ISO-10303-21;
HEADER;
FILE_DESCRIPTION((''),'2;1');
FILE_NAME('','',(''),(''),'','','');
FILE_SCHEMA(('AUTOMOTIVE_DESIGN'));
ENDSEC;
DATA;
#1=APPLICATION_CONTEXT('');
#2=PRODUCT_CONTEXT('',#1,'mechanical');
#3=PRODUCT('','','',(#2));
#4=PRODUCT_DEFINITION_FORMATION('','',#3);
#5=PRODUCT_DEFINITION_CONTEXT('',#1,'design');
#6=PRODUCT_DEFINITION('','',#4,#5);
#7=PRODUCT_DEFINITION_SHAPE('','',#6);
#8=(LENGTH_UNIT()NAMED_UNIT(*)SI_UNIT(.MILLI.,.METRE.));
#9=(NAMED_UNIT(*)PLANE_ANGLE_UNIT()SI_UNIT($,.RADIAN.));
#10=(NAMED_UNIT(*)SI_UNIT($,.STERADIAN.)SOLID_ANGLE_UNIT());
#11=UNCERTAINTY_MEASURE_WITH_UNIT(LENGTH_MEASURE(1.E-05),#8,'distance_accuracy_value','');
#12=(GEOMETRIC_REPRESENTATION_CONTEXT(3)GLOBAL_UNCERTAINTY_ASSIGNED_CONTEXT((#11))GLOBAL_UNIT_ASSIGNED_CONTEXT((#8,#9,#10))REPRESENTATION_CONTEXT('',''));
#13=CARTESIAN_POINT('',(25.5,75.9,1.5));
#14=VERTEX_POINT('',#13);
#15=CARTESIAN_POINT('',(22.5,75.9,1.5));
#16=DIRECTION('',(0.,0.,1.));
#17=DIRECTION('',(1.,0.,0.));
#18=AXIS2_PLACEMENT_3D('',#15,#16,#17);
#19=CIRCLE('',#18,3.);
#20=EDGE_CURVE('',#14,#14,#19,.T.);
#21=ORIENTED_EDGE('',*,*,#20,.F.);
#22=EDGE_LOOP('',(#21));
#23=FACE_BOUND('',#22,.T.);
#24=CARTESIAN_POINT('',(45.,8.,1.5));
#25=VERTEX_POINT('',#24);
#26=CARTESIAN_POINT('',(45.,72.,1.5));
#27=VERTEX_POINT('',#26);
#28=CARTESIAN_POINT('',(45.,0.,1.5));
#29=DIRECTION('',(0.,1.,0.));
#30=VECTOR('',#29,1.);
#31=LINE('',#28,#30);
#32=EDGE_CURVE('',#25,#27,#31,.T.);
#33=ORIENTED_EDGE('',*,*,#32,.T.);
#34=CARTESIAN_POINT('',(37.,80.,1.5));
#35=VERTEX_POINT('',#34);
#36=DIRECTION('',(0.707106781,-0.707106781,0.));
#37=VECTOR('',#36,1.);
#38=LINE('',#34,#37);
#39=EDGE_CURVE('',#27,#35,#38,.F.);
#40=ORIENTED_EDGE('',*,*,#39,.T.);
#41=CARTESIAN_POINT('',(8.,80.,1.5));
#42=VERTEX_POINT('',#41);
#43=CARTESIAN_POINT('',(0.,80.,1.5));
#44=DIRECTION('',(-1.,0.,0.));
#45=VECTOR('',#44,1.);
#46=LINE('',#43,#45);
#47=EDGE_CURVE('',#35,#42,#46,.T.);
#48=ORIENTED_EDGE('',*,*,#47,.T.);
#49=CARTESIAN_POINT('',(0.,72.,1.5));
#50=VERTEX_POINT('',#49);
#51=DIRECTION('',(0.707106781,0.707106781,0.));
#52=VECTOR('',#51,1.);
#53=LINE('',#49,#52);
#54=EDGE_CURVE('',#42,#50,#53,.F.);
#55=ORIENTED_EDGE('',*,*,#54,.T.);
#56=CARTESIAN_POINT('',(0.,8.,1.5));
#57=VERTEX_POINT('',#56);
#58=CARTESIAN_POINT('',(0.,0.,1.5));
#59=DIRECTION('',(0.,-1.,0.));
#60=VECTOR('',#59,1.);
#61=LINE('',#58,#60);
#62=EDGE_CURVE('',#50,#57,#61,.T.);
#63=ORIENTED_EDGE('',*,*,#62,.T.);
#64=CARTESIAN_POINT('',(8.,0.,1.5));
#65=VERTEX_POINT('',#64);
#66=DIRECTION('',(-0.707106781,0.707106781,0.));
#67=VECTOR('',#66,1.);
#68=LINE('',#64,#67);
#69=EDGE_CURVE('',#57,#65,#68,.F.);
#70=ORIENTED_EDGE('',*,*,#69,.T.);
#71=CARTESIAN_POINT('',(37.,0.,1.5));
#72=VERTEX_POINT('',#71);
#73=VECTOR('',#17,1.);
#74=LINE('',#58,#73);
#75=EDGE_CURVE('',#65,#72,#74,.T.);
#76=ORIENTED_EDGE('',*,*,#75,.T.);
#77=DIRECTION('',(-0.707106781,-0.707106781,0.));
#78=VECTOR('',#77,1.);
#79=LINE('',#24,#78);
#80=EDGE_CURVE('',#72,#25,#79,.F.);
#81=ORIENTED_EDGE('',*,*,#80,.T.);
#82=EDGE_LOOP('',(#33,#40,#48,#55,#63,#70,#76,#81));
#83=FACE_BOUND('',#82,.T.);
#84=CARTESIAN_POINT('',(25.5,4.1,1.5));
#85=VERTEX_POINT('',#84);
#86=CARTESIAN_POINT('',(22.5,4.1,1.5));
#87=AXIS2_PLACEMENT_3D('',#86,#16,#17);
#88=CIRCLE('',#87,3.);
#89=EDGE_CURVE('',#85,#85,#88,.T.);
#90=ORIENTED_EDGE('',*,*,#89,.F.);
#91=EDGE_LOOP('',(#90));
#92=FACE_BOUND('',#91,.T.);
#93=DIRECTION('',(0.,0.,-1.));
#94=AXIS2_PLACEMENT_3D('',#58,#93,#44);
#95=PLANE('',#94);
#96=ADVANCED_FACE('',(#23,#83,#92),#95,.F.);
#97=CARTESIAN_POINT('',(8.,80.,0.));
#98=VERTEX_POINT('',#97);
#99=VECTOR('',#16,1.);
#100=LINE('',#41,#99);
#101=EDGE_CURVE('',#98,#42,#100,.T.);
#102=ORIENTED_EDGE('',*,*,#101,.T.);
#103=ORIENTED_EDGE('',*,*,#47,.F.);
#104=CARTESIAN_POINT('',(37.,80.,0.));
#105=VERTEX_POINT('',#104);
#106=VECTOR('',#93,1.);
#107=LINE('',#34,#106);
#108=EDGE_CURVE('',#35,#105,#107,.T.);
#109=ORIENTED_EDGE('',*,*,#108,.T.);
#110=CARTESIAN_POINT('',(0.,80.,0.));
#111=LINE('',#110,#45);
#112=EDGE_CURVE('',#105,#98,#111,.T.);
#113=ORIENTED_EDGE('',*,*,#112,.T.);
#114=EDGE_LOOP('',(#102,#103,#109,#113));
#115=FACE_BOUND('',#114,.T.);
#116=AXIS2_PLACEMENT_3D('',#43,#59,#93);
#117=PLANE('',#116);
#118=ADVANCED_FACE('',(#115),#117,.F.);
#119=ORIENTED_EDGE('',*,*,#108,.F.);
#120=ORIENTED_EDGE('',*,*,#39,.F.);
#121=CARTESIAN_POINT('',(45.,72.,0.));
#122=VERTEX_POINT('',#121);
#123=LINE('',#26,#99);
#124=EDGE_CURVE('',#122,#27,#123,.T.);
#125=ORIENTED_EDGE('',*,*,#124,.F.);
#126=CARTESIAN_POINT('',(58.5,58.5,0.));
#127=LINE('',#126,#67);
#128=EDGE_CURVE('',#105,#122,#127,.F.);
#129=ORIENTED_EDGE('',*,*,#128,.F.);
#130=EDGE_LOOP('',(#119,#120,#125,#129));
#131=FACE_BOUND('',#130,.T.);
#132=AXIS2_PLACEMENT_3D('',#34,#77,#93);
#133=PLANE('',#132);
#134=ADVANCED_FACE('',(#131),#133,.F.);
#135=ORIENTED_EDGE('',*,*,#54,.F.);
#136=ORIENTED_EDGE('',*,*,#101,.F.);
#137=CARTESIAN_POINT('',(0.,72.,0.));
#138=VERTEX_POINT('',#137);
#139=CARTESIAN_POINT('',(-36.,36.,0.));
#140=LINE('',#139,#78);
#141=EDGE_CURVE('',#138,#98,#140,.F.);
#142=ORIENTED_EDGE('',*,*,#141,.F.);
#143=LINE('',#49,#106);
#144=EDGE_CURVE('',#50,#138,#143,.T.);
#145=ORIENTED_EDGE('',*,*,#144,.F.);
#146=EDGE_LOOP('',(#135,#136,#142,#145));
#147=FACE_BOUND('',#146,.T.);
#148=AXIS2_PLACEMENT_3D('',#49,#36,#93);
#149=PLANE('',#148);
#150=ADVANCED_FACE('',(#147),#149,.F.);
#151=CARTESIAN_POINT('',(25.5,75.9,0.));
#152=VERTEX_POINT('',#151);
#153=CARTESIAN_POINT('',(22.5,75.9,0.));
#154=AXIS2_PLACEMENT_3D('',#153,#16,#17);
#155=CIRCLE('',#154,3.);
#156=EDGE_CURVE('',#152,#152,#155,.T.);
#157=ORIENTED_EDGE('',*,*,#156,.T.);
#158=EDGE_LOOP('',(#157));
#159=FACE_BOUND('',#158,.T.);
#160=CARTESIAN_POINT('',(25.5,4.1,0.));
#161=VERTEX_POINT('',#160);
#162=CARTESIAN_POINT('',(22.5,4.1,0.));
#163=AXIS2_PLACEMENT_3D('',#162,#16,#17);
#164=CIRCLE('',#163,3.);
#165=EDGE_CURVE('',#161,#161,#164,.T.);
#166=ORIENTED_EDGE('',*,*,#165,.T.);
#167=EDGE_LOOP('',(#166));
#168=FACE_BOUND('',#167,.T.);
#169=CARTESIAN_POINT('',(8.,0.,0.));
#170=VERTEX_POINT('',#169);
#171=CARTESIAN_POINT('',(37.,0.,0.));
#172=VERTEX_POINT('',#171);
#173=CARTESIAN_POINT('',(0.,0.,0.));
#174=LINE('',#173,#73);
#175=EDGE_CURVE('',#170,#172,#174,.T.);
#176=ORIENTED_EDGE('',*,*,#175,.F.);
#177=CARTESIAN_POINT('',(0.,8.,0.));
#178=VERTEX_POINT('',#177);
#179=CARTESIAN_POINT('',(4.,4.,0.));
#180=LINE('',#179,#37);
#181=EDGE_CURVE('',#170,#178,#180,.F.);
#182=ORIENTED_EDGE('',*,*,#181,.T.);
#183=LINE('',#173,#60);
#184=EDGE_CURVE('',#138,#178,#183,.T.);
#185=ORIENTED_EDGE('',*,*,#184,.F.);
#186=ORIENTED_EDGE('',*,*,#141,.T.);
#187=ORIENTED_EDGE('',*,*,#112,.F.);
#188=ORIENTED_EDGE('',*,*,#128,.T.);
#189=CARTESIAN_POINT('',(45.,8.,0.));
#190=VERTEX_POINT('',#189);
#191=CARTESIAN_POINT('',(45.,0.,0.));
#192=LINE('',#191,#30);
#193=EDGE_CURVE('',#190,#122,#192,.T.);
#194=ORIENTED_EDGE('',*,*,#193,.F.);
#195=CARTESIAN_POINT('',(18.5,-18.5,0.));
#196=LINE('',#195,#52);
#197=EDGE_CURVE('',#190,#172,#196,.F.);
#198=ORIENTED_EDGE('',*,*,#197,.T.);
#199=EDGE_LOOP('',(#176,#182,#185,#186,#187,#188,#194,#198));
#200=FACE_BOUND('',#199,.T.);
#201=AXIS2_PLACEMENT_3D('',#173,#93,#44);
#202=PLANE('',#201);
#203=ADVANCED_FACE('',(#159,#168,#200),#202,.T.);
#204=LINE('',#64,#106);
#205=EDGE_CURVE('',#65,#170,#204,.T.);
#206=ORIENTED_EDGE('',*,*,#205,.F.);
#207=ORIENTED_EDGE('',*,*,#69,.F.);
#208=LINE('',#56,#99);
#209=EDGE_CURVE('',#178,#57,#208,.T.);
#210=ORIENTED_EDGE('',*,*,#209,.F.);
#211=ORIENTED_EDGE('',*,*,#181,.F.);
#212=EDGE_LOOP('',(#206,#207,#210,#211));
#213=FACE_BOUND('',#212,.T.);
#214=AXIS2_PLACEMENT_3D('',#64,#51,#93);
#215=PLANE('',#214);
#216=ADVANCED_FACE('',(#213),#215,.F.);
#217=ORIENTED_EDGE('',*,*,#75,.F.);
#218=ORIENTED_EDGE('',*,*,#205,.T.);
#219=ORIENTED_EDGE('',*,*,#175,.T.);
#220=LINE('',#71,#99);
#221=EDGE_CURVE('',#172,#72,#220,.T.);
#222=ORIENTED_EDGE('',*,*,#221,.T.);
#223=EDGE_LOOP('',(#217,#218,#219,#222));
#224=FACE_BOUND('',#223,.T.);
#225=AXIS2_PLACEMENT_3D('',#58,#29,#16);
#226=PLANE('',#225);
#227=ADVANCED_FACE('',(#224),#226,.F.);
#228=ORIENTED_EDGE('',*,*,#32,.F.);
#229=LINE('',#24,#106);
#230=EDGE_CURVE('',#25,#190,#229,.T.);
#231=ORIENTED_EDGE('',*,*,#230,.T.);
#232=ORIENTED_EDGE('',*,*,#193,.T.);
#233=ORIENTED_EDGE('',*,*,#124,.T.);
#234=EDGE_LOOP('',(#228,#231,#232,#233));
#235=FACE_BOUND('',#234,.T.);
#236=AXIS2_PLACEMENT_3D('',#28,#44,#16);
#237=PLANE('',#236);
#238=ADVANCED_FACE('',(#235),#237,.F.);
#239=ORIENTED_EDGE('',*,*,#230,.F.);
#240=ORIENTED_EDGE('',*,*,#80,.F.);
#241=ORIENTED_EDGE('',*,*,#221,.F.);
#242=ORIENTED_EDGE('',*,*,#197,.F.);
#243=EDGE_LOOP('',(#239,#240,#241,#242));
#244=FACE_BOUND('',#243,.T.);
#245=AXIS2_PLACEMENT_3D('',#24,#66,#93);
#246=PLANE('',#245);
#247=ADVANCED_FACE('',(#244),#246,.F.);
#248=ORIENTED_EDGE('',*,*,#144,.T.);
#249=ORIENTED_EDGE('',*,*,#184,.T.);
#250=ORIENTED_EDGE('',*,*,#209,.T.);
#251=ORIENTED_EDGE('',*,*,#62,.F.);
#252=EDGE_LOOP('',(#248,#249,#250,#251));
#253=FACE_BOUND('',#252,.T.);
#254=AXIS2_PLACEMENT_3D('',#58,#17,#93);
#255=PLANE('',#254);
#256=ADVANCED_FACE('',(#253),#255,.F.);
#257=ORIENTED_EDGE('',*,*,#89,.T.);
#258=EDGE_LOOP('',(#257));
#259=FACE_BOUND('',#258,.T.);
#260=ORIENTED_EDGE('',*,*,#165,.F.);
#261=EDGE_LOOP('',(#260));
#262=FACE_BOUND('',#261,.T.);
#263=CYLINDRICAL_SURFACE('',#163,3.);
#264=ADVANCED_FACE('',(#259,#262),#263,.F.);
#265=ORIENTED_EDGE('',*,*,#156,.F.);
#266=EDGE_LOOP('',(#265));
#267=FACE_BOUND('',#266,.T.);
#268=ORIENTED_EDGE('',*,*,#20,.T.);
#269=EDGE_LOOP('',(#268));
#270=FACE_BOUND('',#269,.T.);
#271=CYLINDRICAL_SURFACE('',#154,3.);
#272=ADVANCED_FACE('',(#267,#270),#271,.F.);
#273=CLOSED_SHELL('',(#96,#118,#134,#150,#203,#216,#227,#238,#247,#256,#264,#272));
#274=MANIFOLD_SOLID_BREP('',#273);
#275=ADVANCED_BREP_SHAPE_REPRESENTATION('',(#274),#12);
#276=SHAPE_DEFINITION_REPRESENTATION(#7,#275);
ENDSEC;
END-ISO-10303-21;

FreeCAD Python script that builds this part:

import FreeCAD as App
import Part
import Sketcher

V = App.Vector


def edges_at(feature, points):
    """Names of the edges that pass closest to the given points."""
    edges = feature.Shape.Edges
    near = lambda p: min(range(len(edges)), key=lambda i: edges[i].distToShape(Part.Vertex(*p))[0])
    return sorted({f"Edge{near(p) + 1}" for p in points})

doc = App.newDocument("Part")
body = doc.addObject("PartDesign::Body", "Body")

# Sketch on XY plane
sketch1 = body.newObject("Sketcher::SketchObject", "Sketch")
sketch1.AttachmentSupport = (doc.getObject("XY_Plane"), [""])
sketch1.MapMode = "FlatFace"
sketch1.addGeometry(Part.LineSegment(V(0, 80, 0), V(0, 0, 0)), False)
sketch1.addGeometry(Part.LineSegment(V(0, 0, 0), V(45, 0, 0)), False)
sketch1.addGeometry(Part.LineSegment(V(45, 0, 0), V(45, 80, 0)), False)
sketch1.addGeometry(Part.LineSegment(V(45, 80, 0), V(0, 80, 0)), False)
sketch1.addConstraint(Sketcher.Constraint("Coincident", 0, 2, 1, 1))
sketch1.addConstraint(Sketcher.Constraint("Coincident", 1, 2, 2, 1))
sketch1.addConstraint(Sketcher.Constraint("Coincident", 2, 2, 3, 1))
sketch1.addConstraint(Sketcher.Constraint("Coincident", 3, 2, 0, 1))
sketch1.addConstraint(Sketcher.Constraint("Vertical", 0))
sketch1.addConstraint(Sketcher.Constraint("Horizontal", 1))
sketch1.addConstraint(Sketcher.Constraint("Vertical", 2))
sketch1.addConstraint(Sketcher.Constraint("Horizontal", 3))
sketch1.addConstraint(Sketcher.Constraint("Coincident", 0, 2, -1, 1))
sketch1.addConstraint(Sketcher.Constraint("DistanceX", 1, 1, 1, 2, 45.0))
sketch1.addConstraint(Sketcher.Constraint("DistanceY", 0, 2, 0, 1, 80.0))
pad1 = body.newObject("PartDesign::Pad", "Pad")
pad1.Profile = sketch1
pad1.Length = 1.5
doc.recompute()

chamfer = body.newObject("PartDesign::Chamfer", "Chamfer")
chamfer.Base = (pad1, edges_at(pad1, [
    (0, 80, 0.75),
    (45, 80, 0.75),
    (45, 0, 0.75),
    (0, 0, 0.75),
]))
chamfer.Size = 8

# Sketch on XY plane
sketch2 = body.newObject("Sketcher::SketchObject", "Sketch001")
sketch2.AttachmentSupport = (doc.getObject("XY_Plane"), [""])
sketch2.MapMode = "FlatFace"
sketch2.AttachmentOffset = App.Placement(V(0, 0, 1.5), App.Rotation())
sketch2.addGeometry(Part.Circle(V(22.5, 75.9, 0), V(0, 0, 1), 3), False)
sketch2.addGeometry(Part.Circle(V(22.5, 4.1, 0), V(0, 0, 1), 3), False)
sketch2.addConstraint(Sketcher.Constraint("Equal", 0, 1))
sketch2.addConstraint(Sketcher.Constraint("Vertical", 0, 3, 1, 3))
sketch2.addConstraint(Sketcher.Constraint("Diameter", 0, 6.0))
sketch2.addConstraint(Sketcher.Constraint("DistanceX", -1, 1, 0, 3, 22.5))
sketch2.addConstraint(Sketcher.Constraint("DistanceY", -1, 1, 0, 3, 75.9))
sketch2.addConstraint(Sketcher.Constraint("DistanceY", -1, 1, 1, 3, 4.1))
pocket1 = body.newObject("PartDesign::Pocket", "Pocket")
pocket1.Profile = sketch2
pocket1.Type = "ThroughAll"

doc.recompute()
